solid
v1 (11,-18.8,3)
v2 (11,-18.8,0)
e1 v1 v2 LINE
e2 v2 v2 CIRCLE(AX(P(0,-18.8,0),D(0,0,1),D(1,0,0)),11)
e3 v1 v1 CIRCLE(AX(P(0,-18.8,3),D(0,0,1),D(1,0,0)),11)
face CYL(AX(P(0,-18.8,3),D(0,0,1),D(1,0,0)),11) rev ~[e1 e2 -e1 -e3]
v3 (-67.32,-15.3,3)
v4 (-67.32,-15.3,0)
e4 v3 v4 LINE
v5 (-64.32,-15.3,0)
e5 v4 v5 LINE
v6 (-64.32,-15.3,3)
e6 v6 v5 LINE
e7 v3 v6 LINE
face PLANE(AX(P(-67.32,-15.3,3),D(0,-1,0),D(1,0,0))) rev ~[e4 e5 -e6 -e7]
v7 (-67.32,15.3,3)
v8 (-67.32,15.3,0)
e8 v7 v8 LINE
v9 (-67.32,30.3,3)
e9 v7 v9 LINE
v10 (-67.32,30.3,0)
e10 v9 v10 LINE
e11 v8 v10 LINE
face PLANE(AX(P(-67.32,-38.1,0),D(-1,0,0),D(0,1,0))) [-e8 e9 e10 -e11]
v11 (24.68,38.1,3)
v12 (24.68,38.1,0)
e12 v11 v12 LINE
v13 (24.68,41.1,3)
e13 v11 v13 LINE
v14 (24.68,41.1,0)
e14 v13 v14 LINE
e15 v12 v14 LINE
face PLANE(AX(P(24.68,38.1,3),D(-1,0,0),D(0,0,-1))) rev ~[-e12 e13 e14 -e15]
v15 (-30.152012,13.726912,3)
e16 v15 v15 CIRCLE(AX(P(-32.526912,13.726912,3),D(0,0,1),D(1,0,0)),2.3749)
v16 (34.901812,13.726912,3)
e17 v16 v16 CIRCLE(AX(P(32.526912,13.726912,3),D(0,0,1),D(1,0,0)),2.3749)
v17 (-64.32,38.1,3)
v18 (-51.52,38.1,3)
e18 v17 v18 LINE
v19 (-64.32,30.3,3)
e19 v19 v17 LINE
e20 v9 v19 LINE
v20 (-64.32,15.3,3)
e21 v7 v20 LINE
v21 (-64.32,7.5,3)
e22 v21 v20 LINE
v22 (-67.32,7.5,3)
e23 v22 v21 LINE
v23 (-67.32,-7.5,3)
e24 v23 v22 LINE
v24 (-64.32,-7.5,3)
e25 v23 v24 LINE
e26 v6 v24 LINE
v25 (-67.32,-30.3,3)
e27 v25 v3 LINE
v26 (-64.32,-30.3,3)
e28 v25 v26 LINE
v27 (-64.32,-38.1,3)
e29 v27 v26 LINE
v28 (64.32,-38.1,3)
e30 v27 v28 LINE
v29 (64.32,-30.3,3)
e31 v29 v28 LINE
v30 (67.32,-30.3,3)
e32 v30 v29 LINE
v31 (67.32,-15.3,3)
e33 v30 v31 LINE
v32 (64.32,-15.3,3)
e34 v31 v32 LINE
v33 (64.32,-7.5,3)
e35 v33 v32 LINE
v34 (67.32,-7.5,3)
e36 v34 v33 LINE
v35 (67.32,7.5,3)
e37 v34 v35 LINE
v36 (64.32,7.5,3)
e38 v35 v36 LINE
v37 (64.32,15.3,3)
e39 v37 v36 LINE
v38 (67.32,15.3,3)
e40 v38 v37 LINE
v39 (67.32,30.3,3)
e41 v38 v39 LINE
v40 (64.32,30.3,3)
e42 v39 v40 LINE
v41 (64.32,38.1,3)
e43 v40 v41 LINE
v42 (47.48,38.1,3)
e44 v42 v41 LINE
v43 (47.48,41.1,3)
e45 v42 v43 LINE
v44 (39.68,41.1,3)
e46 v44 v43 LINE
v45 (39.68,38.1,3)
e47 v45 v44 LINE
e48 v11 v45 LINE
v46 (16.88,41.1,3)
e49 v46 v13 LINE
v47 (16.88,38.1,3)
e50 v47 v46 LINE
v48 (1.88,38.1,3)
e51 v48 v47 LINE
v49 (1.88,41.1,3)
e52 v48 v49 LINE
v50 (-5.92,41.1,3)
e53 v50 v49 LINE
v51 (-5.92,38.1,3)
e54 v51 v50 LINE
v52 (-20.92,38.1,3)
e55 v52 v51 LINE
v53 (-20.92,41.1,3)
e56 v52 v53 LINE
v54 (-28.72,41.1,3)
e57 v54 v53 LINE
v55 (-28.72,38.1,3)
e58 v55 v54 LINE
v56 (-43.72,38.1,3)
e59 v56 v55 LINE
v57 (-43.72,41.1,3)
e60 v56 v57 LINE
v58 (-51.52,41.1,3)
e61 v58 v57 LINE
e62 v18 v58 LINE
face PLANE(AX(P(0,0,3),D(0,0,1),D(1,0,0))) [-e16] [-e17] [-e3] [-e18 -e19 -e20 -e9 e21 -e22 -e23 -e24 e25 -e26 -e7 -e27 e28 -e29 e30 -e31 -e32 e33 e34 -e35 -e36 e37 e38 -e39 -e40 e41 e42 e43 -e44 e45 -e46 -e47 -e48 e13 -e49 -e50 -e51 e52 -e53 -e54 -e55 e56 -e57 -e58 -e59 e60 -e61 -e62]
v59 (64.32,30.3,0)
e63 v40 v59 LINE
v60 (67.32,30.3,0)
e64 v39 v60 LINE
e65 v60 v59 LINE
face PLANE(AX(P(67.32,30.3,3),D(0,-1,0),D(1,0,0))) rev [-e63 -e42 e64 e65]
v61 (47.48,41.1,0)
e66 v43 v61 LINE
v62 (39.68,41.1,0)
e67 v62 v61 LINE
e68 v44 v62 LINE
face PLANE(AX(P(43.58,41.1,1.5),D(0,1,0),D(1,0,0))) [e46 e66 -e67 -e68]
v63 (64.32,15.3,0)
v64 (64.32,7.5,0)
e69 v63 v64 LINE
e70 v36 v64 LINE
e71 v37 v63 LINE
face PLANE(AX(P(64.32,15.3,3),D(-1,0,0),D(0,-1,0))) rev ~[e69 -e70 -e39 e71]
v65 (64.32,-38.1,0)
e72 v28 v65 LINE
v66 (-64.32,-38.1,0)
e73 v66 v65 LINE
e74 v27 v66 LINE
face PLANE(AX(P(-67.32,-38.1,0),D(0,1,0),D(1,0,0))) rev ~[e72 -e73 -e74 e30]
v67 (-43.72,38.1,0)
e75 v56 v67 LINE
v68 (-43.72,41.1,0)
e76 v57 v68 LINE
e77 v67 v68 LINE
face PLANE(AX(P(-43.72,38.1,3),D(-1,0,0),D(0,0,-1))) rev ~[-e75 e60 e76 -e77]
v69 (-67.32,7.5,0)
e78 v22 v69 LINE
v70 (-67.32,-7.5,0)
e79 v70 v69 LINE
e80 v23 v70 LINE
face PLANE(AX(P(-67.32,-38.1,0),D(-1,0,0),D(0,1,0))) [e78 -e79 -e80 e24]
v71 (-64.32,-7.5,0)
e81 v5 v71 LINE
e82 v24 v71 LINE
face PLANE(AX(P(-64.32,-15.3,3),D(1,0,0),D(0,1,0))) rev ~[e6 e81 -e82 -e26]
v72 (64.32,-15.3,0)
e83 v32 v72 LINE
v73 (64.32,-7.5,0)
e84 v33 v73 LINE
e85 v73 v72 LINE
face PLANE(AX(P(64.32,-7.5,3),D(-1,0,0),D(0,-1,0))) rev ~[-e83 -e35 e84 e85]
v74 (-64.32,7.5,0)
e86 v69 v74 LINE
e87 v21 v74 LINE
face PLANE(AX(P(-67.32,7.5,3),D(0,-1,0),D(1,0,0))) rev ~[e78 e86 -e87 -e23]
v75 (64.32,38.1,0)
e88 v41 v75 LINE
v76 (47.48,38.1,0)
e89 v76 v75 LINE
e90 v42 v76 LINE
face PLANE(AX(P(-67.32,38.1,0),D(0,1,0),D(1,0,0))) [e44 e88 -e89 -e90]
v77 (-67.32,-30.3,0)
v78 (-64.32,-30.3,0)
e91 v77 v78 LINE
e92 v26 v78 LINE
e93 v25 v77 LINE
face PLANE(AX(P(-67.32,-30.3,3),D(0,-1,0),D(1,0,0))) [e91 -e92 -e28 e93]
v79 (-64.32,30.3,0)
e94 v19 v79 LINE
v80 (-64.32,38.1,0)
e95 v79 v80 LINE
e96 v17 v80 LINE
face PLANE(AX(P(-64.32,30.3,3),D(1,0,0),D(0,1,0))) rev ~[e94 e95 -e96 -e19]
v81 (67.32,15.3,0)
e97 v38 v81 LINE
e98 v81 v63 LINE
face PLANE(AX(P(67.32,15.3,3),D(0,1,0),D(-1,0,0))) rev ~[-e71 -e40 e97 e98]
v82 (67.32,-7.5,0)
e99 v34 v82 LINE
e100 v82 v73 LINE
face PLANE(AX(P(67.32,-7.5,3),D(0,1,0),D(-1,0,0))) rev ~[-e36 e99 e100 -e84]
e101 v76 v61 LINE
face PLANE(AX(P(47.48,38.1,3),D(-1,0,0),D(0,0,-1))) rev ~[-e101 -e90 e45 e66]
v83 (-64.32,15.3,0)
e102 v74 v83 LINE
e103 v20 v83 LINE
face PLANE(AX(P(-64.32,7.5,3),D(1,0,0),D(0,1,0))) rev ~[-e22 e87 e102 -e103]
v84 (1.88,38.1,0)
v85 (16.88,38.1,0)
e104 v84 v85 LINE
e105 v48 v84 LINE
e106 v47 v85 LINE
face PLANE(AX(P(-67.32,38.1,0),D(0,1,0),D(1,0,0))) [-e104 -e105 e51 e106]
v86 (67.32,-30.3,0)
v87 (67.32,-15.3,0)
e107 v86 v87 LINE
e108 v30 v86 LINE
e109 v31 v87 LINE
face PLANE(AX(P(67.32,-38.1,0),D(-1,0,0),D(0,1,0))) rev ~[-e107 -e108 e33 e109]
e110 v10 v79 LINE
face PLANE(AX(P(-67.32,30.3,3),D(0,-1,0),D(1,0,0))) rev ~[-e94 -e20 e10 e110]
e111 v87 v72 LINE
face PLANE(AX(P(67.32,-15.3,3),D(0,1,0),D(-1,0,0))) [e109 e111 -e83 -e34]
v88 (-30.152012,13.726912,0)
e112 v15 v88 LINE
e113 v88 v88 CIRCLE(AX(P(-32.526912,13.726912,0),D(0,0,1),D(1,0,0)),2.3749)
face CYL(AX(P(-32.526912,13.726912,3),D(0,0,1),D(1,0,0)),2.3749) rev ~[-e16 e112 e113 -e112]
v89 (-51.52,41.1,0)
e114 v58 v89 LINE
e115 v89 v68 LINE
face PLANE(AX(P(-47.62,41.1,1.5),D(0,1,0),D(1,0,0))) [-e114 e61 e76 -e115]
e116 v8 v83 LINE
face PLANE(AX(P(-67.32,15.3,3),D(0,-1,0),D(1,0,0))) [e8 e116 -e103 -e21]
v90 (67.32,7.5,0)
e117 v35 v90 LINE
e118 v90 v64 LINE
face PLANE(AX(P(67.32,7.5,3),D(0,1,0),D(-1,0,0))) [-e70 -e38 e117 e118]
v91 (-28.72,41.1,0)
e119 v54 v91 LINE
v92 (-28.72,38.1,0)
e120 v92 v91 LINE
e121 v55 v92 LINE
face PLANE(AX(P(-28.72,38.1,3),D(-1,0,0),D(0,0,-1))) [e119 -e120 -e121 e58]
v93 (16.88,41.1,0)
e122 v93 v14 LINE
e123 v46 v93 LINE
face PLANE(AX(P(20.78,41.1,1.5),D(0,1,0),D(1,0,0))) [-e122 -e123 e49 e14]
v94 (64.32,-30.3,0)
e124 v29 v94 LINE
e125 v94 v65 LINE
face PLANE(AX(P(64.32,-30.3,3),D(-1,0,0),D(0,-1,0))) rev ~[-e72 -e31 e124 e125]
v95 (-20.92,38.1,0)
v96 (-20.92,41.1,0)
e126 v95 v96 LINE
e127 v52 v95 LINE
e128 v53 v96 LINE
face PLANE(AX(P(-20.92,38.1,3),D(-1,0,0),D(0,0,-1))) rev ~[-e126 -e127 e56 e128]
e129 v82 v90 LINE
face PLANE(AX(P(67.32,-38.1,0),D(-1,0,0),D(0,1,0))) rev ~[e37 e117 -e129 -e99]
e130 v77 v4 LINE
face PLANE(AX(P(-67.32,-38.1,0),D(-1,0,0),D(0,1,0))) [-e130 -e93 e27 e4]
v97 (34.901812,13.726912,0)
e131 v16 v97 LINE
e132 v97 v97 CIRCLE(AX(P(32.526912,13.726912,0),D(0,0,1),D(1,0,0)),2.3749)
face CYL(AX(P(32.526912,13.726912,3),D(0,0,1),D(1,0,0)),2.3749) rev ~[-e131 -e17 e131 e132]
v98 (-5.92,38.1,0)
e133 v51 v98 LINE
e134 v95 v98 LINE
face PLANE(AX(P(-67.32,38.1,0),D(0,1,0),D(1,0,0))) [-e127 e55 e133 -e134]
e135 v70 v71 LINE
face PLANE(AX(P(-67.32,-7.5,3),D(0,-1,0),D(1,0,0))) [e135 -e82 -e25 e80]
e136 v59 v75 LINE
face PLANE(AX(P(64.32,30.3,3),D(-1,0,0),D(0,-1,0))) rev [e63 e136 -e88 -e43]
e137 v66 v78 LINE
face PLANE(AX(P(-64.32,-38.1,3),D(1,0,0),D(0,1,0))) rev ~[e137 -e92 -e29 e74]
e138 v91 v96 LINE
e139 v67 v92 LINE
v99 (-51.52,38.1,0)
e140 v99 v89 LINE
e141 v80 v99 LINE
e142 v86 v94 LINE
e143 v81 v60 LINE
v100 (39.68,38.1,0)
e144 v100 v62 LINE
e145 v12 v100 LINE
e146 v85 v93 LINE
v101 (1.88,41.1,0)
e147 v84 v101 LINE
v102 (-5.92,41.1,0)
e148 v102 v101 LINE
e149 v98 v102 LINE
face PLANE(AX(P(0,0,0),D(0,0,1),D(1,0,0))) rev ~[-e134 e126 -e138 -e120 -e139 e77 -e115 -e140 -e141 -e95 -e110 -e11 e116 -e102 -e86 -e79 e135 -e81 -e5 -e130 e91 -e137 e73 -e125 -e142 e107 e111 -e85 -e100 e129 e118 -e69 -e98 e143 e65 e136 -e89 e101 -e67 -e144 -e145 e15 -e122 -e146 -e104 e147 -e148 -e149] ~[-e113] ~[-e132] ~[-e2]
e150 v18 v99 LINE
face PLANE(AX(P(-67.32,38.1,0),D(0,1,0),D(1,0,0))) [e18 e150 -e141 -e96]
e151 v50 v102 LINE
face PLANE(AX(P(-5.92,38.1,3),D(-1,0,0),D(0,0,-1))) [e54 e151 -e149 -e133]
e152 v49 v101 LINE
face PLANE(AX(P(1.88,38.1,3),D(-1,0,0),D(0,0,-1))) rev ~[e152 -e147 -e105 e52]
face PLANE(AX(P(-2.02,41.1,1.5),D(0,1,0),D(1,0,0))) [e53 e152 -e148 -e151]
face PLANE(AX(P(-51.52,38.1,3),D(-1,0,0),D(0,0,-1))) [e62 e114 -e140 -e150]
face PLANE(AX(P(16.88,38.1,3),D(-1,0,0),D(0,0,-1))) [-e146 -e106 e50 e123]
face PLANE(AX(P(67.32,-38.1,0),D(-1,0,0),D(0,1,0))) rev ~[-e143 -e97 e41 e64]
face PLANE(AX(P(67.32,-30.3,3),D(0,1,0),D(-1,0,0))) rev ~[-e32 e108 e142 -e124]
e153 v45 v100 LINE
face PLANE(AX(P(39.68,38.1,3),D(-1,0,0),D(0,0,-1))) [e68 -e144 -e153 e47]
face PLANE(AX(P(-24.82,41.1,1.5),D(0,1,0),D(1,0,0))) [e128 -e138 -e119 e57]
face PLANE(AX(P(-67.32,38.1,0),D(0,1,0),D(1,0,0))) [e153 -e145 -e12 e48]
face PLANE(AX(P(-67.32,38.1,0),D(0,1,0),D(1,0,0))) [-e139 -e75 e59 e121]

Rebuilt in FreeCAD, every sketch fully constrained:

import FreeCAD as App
import Part
import Sketcher
from FreeCAD import Vector
Q = App.Units.Quantity


def add_polygon(sketch, points):
    """Adds a closed chain of lines whose ends are joined by coincident constraints."""
    first, n = sketch.GeometryCount, len(points)
    for a, b in zip(points, points[1:] + points[:1]):
        sketch.addGeometry(Part.LineSegment(App.Vector(*a, 0), App.Vector(*b, 0)), False)
    for i in range(n):
        sketch.addConstraint(Sketcher.Constraint("Coincident", first + i, 2, first + (i + 1) % n, 1))

doc = App.newDocument("Part")
body = doc.addObject("PartDesign::Body", "Body")

sketch1 = body.newObject("Sketcher::SketchObject", "Sketch")
sketch1.AttachmentSupport = (doc.getObject("XY_Plane"), [""])
sketch1.MapMode = "FlatFace"
add_polygon(sketch1, [(-67, 38), (-67, -38), (67, -38), (67, 38)])
sketch1.addConstraint(Sketcher.Constraint("Vertical", 0))
sketch1.addConstraint(Sketcher.Constraint("Horizontal", 1))
sketch1.addConstraint(Sketcher.Constraint("Vertical", 2))
sketch1.addConstraint(Sketcher.Constraint("Horizontal", 3))
sketch1.addConstraint(Sketcher.Constraint("Symmetric", 0, 2, 2, 2, -1, 1))
sketch1.addConstraint(Sketcher.Constraint("DistanceY", 0, 2, 0, 1, Q("76.2 mm")))
sketch1.addConstraint(Sketcher.Constraint("DistanceX", 1, 1, 1, 2, Q("134.64 mm")))
pad1 = body.newObject("PartDesign::Pad", "Pad")
pad1.Profile = sketch1
pad1.Length = 3

sketch2 = body.newObject("Sketcher::SketchObject", "Sketch001")
sketch2.AttachmentSupport = (doc.getObject("XY_Plane"), [""])
sketch2.MapMode = "FlatFace"
sketch2.AttachmentOffset = App.Placement(Vector(0, 0, 3), App.Rotation())
add_polygon(sketch2, [(-67.3, 38.1), (-67.3, 30.3), (-64.3, 30.3), (-64.3, 38.1)])
sketch2.addConstraint(Sketcher.Constraint("Vertical", 0))
sketch2.addConstraint(Sketcher.Constraint("Horizontal", 1))
sketch2.addConstraint(Sketcher.Constraint("Vertical", 2))
sketch2.addConstraint(Sketcher.Constraint("Horizontal", 3))
sketch2.addConstraint(Sketcher.Constraint("DistanceX", 1, 1, 1, 2, Q("3 mm")))
sketch2.addConstraint(Sketcher.Constraint("DistanceY", 0, 2, 0, 1, Q("7.8 mm")))
sketch2.addConstraint(Sketcher.Constraint("DistanceY", -1, 1, 0, 2, Q("30.3 mm")))
sketch2.addConstraint(Sketcher.Constraint("DistanceX", 0, 2, -1, 1, Q("67.32 mm")))
pocket1 = body.newObject("PartDesign::Pocket", "Pocket")
pocket1.Profile = sketch2
pocket1.Type = "ThroughAll"
doc.recompute()

linearpattern = body.newObject("PartDesign::LinearPattern", "LinearPattern")
linearpattern.Originals = [pocket1]
linearpattern.Direction = (doc.getObject("Y_Axis"), [""])
linearpattern.Mode = "offset"
linearpattern.Offset = 22.8
linearpattern.Occurrences = 4
linearpattern.Reversed = True
body.Tip = linearpattern
doc.recompute()

mirrored = body.newObject("PartDesign::Mirrored", "Mirrored")
mirrored.Originals = [pocket1]
mirrored.MirrorPlane = (doc.getObject("YZ_Plane"), [""])
body.Tip = mirrored

sketch3 = body.newObject("Sketcher::SketchObject", "Sketch002")
sketch3.AttachmentSupport = (doc.getObject("XY_Plane"), [""])
sketch3.MapMode = "FlatFace"
sketch3.AttachmentOffset = App.Placement(Vector(0, 0, 3), App.Rotation())
add_polygon(sketch3, [(67.3, 7.5), (67.3, 15.3), (64.3, 15.3), (64.3, 7.5)])
sketch3.addConstraint(Sketcher.Constraint("Vertical", 0))
sketch3.addConstraint(Sketcher.Constraint("Horizontal", 1))
sketch3.addConstraint(Sketcher.Constraint("Vertical", 2))
sketch3.addConstraint(Sketcher.Constraint("Horizontal", 3))
sketch3.addConstraint(Sketcher.Constraint("DistanceX", 1, 2, 1, 1, Q("3 mm")))
sketch3.addConstraint(Sketcher.Constraint("DistanceY", 0, 1, 0, 2, Q("7.8 mm")))
sketch3.addConstraint(Sketcher.Constraint("DistanceY", -1, 1, 0, 2, Q("15.3 mm")))
sketch3.addConstraint(Sketcher.Constraint("DistanceX", -1, 1, 0, 2, Q("67.32 mm")))
pocket2 = body.newObject("PartDesign::Pocket", "Pocket001")
pocket2.Profile = sketch3
pocket2.Type = "ThroughAll"

sketch4 = body.newObject("Sketcher::SketchObject", "Sketch003")
sketch4.AttachmentSupport = (doc.getObject("XY_Plane"), [""])
sketch4.MapMode = "FlatFace"
sketch4.AttachmentOffset = App.Placement(Vector(0, 0, 3), App.Rotation())
add_polygon(sketch4, [(67.3, -15.3), (67.3, -7.5), (64.3, -7.5), (64.3, -15.3)])
sketch4.addConstraint(Sketcher.Constraint("Vertical", 0))
sketch4.addConstraint(Sketcher.Constraint("Horizontal", 1))
sketch4.addConstraint(Sketcher.Constraint("Vertical", 2))
sketch4.addConstraint(Sketcher.Constraint("Horizontal", 3))
sketch4.addConstraint(Sketcher.Constraint("DistanceX", 1, 2, 1, 1, Q("3 mm")))
sketch4.addConstraint(Sketcher.Constraint("DistanceY", 0, 1, 0, 2, Q("7.8 mm")))
sketch4.addConstraint(Sketcher.Constraint("DistanceY", 0, 2, -1, 1, Q("7.5 mm")))
sketch4.addConstraint(Sketcher.Constraint("DistanceX", -1, 1, 0, 2, Q("67.32 mm")))
pocket3 = body.newObject("PartDesign::Pocket", "Pocket002")
pocket3.Profile = sketch4
pocket3.Type = "ThroughAll"

sketch5 = body.newObject("Sketcher::SketchObject", "Sketch004")
sketch5.AttachmentSupport = (doc.getObject("XY_Plane"), [""])
sketch5.MapMode = "FlatFace"
sketch5.AttachmentOffset = App.Placement(Vector(0, 0, 3), App.Rotation())
add_polygon(sketch5, [(67.3, -38.1), (67.3, -30.3), (64.3, -30.3), (64.3, -38.1)])
sketch5.addConstraint(Sketcher.Constraint("Vertical", 0))
sketch5.addConstraint(Sketcher.Constraint("Horizontal", 1))
sketch5.addConstraint(Sketcher.Constraint("Vertical", 2))
sketch5.addConstraint(Sketcher.Constraint("Horizontal", 3))
sketch5.addConstraint(Sketcher.Constraint("DistanceX", 1, 2, 1, 1, Q("3 mm")))
sketch5.addConstraint(Sketcher.Constraint("DistanceY", 0, 1, 0, 2, Q("7.8 mm")))
sketch5.addConstraint(Sketcher.Constraint("DistanceY", 0, 2, -1, 1, Q("30.3 mm")))
sketch5.addConstraint(Sketcher.Constraint("DistanceX", -1, 1, 0, 2, Q("67.32 mm")))
pocket4 = body.newObject("PartDesign::Pocket", "Pocket003")
pocket4.Profile = sketch5
pocket4.Type = "ThroughAll"

sketch6 = body.newObject("Sketcher::SketchObject", "Sketch005")
sketch6.AttachmentSupport = (doc.getObject("XZ_Plane"), [""])
sketch6.MapMode = "FlatFace"
sketch6.AttachmentOffset = App.Placement(Vector(0, 0, -38.1), App.Rotation())
add_polygon(sketch6, [(-51.5, 0), (-51.5, 3), (-43.7, 3), (-43.7, 0)])
sketch6.addConstraint(Sketcher.Constraint("Vertical", 0))
sketch6.addConstraint(Sketcher.Constraint("Horizontal", 1))
sketch6.addConstraint(Sketcher.Constraint("Vertical", 2))
sketch6.addConstraint(Sketcher.Constraint("Horizontal", 3))
sketch6.addConstraint(Sketcher.Constraint("PointOnObject", 2, 2, -1))
sketch6.addConstraint(Sketcher.Constraint("DistanceY", 0, 1, 0, 2, Q("3 mm")))
sketch6.addConstraint(Sketcher.Constraint("DistanceX", 1, 1, 1, 2, Q("7.8 mm")))
sketch6.addConstraint(Sketcher.Constraint("DistanceX", 0, 2, -1, 1, Q("51.52 mm")))
pad2 = body.newObject("PartDesign::Pad", "Pad001")
pad2.Profile = sketch6
pad2.Length = 3
pad2.Reversed = True
doc.recompute()

linearpattern2 = body.newObject("PartDesign::LinearPattern", "LinearPattern001")
linearpattern2.Originals = [pad2]
linearpattern2.Direction = (doc.getObject("X_Axis"), [""])
linearpattern2.Mode = "offset"
linearpattern2.Offset = 22.8
linearpattern2.Occurrences = 5
body.Tip = linearpattern2

sketch7 = body.newObject("Sketcher::SketchObject", "Sketch006")
sketch7.AttachmentSupport = (doc.getObject("XY_Plane"), [""])
sketch7.MapMode = "FlatFace"
sketch7.AttachmentOffset = App.Placement(Vector(0, 0, 3), App.Rotation())
sketch7.addGeometry(Part.Circle(Vector(0, -19, 0), Vector(0, 0, 1), 11), False)
sketch7.addConstraint(Sketcher.Constraint("PointOnObject", 0, 3, -2))
sketch7.addConstraint(Sketcher.Constraint("Diameter", 0, Q("22 mm")))
sketch7.addConstraint(Sketcher.Constraint("DistanceY", 0, 3, -1, 1, Q("18.8 mm")))
pocket5 = body.newObject("PartDesign::Pocket", "Pocket004")
pocket5.Profile = sketch7
pocket5.Type = "ThroughAll"

sketch8 = body.newObject("Sketcher::SketchObject", "Sketch007")
sketch8.AttachmentSupport = (doc.getObject("XY_Plane"), [""])
sketch8.MapMode = "FlatFace"
sketch8.AttachmentOffset = App.Placement(Vector(0, 0, 3), App.Rotation())
sketch8.addGeometry(Part.Circle(Vector(32.5, 13.7, 0), Vector(0, 0, 1), 2.4), False)
sketch8.addGeometry(Part.Circle(Vector(-32.5, 13.7, 0), Vector(0, 0, 1), 2.4), False)
sketch8.addConstraint(Sketcher.Constraint("Equal", 0, 1))
sketch8.addConstraint(Sketcher.Constraint("Symmetric", 0, 3, 1, 3, -2))
sketch8.addConstraint(Sketcher.Constraint("Diameter", 0, Q("4.7498 mm")))
sketch8.addConstraint(Sketcher.Constraint("DistanceX", -1, 1, 0, 3, Q("32.526912 mm")))
sketch8.addConstraint(Sketcher.Constraint("DistanceY", -1, 1, 0, 3, Q("13.726912 mm")))
pocket6 = body.newObject("PartDesign::Pocket", "Pocket005")
pocket6.Profile = sketch8
pocket6.Type = "ThroughAll"

doc.recompute()
